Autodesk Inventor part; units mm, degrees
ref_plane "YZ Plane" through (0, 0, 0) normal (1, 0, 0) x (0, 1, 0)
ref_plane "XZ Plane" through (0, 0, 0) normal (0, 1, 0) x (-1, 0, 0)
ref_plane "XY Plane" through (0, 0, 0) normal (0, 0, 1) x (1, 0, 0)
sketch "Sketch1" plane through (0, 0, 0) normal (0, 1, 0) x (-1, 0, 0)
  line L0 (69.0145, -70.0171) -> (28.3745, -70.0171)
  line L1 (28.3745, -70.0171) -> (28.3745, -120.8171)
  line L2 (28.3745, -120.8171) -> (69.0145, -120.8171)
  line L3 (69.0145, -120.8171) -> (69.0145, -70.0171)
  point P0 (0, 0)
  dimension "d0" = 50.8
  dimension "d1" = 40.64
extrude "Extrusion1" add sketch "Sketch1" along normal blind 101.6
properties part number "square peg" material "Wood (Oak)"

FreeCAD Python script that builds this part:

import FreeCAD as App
import Part
import Sketcher

V = App.Vector
Q = App.Units.Quantity


def add_polygon(sketch, points):
    """Adds a closed chain of lines whose ends are joined by coincident constraints."""
    first, n = sketch.GeometryCount, len(points)
    for a, b in zip(points, points[1:] + points[:1]):
        sketch.addGeometry(Part.LineSegment(App.Vector(*a, 0), App.Vector(*b, 0)), False)
    for i in range(n):
        sketch.addConstraint(Sketcher.Constraint("Coincident", first + i, 2, first + (i + 1) % n, 1))

doc = App.newDocument("Part")
body = doc.addObject("PartDesign::Body", "Body")

sketch1 = doc.addObject("Sketcher::SketchObject", "Sketch")
body.addObject(sketch1)
sketch1.AttachmentSupport = (doc.XZ_Plane, [""])
sketch1.MapMode = "FlatFace"
add_polygon(sketch1, [(-69, -121), (-69, -70), (-28, -70), (-28, -121)])
sketch1.addConstraint(Sketcher.Constraint("Vertical", 0))
sketch1.addConstraint(Sketcher.Constraint("Horizontal", 1))
sketch1.addConstraint(Sketcher.Constraint("Vertical", 2))
sketch1.addConstraint(Sketcher.Constraint("Horizontal", 3))
sketch1.addConstraint(Sketcher.Constraint("DistanceY", 0, 1, 0, 2, Q("2 in")))
sketch1.addConstraint(Sketcher.Constraint("DistanceX", 1, 1, 1, 2, Q("1.6 in")))
sketch1.addConstraint(Sketcher.Constraint("DistanceX", 0, 2, -1, 1, Q("2.7171 in")))
sketch1.addConstraint(Sketcher.Constraint("DistanceY", 0, 2, -1, 1, Q("70.017 mm")))
pad1 = doc.addObject("PartDesign::Pad", "Pad")
body.addObject(pad1)
pad1.Profile = sketch1
pad1.Length = Q("4 in")
pad1.Reversed = True

doc.recompute()
